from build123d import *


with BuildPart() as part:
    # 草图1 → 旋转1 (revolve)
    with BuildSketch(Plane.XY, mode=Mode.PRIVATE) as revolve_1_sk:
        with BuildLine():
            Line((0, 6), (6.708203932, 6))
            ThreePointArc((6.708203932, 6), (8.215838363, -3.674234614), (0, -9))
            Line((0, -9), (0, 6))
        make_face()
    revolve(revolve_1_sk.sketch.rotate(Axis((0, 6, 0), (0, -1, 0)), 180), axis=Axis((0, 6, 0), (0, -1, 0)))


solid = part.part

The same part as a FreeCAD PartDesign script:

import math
import FreeCAD as App
import Part
import Sketcher
from FreeCAD import Vector

doc = App.newDocument("Part")
body = doc.addObject("PartDesign::Body", "Body")

# Sketch on XY plane
sketch1 = body.newObject("Sketcher::SketchObject", "Sketch")
sketch1.AttachmentSupport = (doc.getObject("XY_Plane"), [""])
sketch1.MapMode = "FlatFace"
sketch1.addGeometry(Part.LineSegment(Vector(6.708204, 6, 0), Vector(0, 6, 0)), False)
sketch1.addGeometry(Part.LineSegment(Vector(0, 6, 0), Vector(0, -9, 0)), False)
sketch1.addGeometry(Part.ArcOfCircle(Part.Circle(Vector(0, 0, 0), Vector(0, 0, 1), 9), math.radians(-90), math.radians(41.810315)), False)
sketch1.addConstraint(Sketcher.Constraint("Coincident", 0, 2, 1, 1))
sketch1.addConstraint(Sketcher.Constraint("Coincident", 1, 2, 2, 1))
sketch1.addConstraint(Sketcher.Constraint("Coincident", 2, 2, 0, 1))
sketch1.addConstraint(Sketcher.Constraint("Horizontal", 0))
sketch1.addConstraint(Sketcher.Constraint("Vertical", 1))
sketch1.addConstraint(Sketcher.Constraint("Coincident", 2, 3, -1, 1))
sketch1.addConstraint(Sketcher.Constraint("PointOnObject", 0, 2, -2))
sketch1.addConstraint(Sketcher.Constraint("Radius", 2, 9.0))
sketch1.addConstraint(Sketcher.Constraint("DistanceY", 1, 2, 1, 1, 15.0))
revolution = body.newObject("PartDesign::Revolution", "Revolution")
revolution.Profile = sketch1
revolution.ReferenceAxis = (sketch1, ["V_Axis"])
revolution.Angle = 360

doc.recompute()
